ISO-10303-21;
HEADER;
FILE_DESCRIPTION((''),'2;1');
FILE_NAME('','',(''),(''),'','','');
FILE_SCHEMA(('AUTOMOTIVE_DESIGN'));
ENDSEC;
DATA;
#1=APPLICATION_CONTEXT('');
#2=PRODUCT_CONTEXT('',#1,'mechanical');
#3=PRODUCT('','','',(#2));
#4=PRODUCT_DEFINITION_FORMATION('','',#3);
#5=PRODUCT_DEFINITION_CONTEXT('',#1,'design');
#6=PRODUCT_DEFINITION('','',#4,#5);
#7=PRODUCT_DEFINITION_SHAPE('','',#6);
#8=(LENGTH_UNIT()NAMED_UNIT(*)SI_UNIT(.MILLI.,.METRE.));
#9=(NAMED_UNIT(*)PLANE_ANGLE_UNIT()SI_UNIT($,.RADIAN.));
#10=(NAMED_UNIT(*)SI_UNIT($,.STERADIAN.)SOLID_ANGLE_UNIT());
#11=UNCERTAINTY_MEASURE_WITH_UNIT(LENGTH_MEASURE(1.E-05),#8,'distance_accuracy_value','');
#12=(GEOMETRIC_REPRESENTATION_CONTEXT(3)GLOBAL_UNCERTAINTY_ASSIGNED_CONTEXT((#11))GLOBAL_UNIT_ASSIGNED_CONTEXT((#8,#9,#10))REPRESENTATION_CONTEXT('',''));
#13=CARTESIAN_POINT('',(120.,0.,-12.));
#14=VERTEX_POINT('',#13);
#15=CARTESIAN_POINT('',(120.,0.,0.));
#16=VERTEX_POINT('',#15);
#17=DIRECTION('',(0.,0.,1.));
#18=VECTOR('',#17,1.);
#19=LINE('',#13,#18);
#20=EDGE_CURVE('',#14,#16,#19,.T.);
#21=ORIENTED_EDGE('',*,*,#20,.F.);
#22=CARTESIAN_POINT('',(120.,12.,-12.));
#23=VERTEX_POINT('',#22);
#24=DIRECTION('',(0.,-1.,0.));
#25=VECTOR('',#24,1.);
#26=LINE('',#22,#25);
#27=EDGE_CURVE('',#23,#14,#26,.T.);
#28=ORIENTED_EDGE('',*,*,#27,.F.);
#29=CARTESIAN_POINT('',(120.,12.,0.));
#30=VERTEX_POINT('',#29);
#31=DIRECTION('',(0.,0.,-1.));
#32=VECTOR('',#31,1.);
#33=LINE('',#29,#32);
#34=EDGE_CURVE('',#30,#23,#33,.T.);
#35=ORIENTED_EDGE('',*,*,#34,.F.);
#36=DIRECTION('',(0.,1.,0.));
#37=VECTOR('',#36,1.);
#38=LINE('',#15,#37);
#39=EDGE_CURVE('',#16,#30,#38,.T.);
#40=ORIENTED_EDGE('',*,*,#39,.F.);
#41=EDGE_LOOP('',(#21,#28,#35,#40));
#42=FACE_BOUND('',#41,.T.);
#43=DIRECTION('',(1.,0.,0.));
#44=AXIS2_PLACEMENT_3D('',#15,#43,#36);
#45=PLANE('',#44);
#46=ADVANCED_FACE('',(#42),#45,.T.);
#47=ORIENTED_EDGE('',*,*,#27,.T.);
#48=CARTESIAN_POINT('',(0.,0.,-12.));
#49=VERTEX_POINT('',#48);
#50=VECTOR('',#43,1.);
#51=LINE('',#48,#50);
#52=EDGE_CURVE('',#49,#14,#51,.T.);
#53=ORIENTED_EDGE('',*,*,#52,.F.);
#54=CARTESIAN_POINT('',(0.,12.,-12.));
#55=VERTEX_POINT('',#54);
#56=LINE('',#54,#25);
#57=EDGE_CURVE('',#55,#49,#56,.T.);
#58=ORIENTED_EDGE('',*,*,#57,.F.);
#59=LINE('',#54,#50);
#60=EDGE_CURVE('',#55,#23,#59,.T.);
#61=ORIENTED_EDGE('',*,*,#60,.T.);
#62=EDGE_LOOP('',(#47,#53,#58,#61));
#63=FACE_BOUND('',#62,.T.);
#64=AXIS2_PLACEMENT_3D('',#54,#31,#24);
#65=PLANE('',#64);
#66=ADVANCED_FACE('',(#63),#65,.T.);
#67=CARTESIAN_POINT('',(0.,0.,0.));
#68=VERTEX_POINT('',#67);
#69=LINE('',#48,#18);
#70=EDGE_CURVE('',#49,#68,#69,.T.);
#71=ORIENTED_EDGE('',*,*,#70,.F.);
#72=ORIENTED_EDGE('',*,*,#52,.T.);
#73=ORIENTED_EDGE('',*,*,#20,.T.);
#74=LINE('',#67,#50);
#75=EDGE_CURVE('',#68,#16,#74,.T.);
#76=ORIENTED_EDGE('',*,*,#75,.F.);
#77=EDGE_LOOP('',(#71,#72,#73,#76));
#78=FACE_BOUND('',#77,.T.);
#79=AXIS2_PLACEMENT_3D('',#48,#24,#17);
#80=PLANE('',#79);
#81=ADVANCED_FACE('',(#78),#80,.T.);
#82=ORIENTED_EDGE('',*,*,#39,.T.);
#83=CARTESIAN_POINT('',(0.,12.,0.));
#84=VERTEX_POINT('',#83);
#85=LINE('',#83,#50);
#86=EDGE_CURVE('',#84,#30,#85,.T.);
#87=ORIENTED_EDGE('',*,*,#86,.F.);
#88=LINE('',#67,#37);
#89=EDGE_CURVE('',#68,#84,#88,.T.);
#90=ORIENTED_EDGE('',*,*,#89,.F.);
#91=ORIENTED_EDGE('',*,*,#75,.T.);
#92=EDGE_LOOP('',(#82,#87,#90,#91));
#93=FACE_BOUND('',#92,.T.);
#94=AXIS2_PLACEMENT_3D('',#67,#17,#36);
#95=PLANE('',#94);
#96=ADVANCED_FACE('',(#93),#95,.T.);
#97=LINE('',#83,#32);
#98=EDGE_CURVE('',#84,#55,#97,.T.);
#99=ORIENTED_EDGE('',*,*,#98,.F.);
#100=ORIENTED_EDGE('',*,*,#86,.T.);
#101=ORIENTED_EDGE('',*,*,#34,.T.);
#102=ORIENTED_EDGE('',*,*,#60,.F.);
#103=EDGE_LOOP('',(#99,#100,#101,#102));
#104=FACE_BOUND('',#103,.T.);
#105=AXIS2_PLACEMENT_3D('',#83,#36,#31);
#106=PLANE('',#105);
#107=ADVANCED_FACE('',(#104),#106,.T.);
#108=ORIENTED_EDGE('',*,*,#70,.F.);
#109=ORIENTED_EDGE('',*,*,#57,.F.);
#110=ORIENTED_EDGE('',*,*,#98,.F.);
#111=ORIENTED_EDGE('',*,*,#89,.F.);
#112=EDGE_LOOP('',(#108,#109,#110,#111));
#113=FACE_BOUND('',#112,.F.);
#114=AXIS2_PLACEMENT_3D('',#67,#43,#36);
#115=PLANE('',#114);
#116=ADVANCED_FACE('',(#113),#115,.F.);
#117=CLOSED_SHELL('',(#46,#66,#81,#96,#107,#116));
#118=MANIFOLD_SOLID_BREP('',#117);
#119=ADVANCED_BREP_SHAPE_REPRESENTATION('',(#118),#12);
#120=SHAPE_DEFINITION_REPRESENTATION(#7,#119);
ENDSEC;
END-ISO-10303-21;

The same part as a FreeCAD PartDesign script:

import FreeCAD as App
import Part
import Sketcher
Q = App.Units.Quantity

doc = App.newDocument("Part")
body = doc.addObject("PartDesign::Body", "Body")

sketch1 = body.newObject("Sketcher::SketchObject", "Sketch")
sketch1.AttachmentSupport = (doc.getObject("YZ_Plane"), [""])
sketch1.MapMode = "FlatFace"
sketch1.addGeometry([
    Part.LineSegment(App.Vector(12, 0, 0), App.Vector(0, 0, 0)),
    Part.LineSegment(App.Vector(0, 0, 0), App.Vector(0, -12, 0)),
    Part.LineSegment(App.Vector(0, -12, 0), App.Vector(12, -12, 0)),
    Part.LineSegment(App.Vector(12, -12, 0), App.Vector(12, 0, 0)),
], False)
sketch1.addConstraint([
    Sketcher.Constraint("Coincident", 0, 2, 1, 1),
    Sketcher.Constraint("Coincident", 1, 2, 2, 1),
    Sketcher.Constraint("Coincident", 2, 2, 3, 1),
    Sketcher.Constraint("Coincident", 3, 2, 0, 1),
    Sketcher.Constraint("Horizontal", 0),
    Sketcher.Constraint("Vertical", 1),
    Sketcher.Constraint("Horizontal", 2),
    Sketcher.Constraint("Vertical", 3),
    Sketcher.Constraint("Coincident", 0, 2, -1, 1),
    Sketcher.Constraint("Equal", 2, 1),
    Sketcher.Constraint("DistanceX", 0, 2, 0, 1, Q("12 mm")),
])
pad1 = body.newObject("PartDesign::Pad", "Pad")
pad1.Profile = sketch1
pad1.Length = 120

doc.recompute()
